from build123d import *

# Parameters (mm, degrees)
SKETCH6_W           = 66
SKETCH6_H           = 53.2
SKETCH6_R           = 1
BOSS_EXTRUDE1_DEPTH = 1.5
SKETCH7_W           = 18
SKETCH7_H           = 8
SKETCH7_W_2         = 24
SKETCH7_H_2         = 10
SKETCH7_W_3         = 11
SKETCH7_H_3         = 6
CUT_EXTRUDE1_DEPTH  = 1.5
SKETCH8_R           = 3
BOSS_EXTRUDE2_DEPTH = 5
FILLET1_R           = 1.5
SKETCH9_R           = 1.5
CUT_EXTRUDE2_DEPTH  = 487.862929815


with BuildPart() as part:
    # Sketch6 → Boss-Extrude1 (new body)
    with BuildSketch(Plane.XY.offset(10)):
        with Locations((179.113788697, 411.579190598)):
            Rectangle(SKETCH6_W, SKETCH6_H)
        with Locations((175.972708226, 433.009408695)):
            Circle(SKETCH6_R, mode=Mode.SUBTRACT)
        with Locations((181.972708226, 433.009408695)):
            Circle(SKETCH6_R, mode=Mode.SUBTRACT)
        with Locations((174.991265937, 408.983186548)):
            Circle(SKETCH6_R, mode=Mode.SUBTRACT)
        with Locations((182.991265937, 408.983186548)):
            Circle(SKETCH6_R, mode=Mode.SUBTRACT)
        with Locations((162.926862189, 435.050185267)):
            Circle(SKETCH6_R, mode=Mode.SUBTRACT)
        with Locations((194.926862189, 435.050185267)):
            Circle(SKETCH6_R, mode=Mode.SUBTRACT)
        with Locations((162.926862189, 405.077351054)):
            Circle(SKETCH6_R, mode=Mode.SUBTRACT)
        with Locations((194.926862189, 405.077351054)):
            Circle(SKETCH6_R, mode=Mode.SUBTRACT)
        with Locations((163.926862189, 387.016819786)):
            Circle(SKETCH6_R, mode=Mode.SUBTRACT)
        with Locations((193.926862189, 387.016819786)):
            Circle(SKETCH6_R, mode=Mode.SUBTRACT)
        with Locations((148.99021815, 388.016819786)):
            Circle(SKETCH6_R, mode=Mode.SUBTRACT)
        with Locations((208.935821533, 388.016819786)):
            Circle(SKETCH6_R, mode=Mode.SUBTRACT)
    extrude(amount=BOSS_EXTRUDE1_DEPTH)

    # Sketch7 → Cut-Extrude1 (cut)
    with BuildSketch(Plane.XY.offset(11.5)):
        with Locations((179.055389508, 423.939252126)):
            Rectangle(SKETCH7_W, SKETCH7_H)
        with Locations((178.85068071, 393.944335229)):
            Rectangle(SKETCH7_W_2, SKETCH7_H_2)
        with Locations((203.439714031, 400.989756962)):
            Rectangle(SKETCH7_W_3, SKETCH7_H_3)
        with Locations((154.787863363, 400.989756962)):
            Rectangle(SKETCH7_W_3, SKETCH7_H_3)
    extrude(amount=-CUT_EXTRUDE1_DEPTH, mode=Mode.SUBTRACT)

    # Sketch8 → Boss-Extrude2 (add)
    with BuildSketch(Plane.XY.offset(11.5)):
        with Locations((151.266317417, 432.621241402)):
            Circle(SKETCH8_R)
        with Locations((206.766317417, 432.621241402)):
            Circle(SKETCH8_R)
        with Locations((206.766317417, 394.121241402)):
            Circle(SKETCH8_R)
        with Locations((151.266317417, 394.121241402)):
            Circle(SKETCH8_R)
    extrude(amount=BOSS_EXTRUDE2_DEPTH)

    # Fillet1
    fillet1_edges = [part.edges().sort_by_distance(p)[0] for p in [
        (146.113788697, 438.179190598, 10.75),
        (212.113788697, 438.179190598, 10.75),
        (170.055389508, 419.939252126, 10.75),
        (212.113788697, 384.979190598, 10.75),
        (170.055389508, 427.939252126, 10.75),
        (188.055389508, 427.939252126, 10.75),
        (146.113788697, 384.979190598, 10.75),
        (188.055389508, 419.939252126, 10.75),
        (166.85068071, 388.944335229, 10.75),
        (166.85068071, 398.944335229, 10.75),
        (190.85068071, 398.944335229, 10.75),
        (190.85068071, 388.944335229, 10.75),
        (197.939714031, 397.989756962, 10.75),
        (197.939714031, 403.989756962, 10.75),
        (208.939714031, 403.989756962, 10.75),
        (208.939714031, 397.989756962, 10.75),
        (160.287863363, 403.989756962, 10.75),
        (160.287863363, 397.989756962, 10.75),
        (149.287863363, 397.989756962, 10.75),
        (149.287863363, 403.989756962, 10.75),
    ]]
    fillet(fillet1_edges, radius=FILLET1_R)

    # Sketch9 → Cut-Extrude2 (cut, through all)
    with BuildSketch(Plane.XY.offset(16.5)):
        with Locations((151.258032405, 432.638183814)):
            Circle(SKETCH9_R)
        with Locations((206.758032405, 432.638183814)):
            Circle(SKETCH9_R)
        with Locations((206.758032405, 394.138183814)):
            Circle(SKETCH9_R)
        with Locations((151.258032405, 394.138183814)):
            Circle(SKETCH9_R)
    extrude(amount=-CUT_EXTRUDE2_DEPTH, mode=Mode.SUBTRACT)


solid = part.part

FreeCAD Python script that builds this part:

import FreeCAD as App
import Part
import Sketcher
from FreeCAD import Vector


def edges_at(feature, points):
    """Names of the edges that pass closest to the given points."""
    edges = feature.Shape.Edges
    near = lambda p: min(range(len(edges)), key=lambda i: edges[i].distToShape(Part.Vertex(*p))[0])
    return sorted({f"Edge{near(p) + 1}" for p in points})


def add_polygon(sketch, points):
    """Adds a closed chain of lines whose ends are joined by coincident constraints."""
    first, n = sketch.GeometryCount, len(points)
    for a, b in zip(points, points[1:] + points[:1]):
        sketch.addGeometry(Part.LineSegment(App.Vector(*a, 0), App.Vector(*b, 0)), False)
    for i in range(n):
        sketch.addConstraint(Sketcher.Constraint("Coincident", first + i, 2, first + (i + 1) % n, 1))

doc = App.newDocument("Part")
body = doc.addObject("PartDesign::Body", "Body")

# Sketch on XY plane
sketch1 = body.newObject("Sketcher::SketchObject", "Sketch")
sketch1.AttachmentSupport = (doc.getObject("XY_Plane"), [""])
sketch1.MapMode = "FlatFace"
sketch1.AttachmentOffset = App.Placement(Vector(0, 0, 10), App.Rotation())
add_polygon(sketch1, [(146.113789, 438.179191), (146.113789, 384.979191), (212.113789, 384.979191), (212.113789, 438.179191)])  # lines 0-3
sketch1.addGeometry(Part.Circle(Vector(148.990218, 388.01682, 0), Vector(0, 0, 1), 1), False)  # 4
sketch1.addGeometry(Part.Circle(Vector(163.926862, 387.01682, 0), Vector(0, 0, 1), 1), False)  # 5
sketch1.addGeometry(Part.Circle(Vector(162.926862, 405.077351, 0), Vector(0, 0, 1), 1), False)  # 6
sketch1.addGeometry(Part.Circle(Vector(174.991266, 408.983187, 0), Vector(0, 0, 1), 1), False)  # 7
sketch1.addGeometry(Part.Circle(Vector(193.926862, 387.01682, 0), Vector(0, 0, 1), 1), False)  # 8
sketch1.addGeometry(Part.Circle(Vector(208.935822, 388.01682, 0), Vector(0, 0, 1), 1), False)  # 9
sketch1.addGeometry(Part.Circle(Vector(182.991266, 408.983187, 0), Vector(0, 0, 1), 1), False)  # 10
sketch1.addGeometry(Part.Circle(Vector(194.926862, 405.077351, 0), Vector(0, 0, 1), 1), False)  # 11
sketch1.addGeometry(Part.Circle(Vector(162.926862, 435.050185, 0), Vector(0, 0, 1), 1), False)  # 12
sketch1.addGeometry(Part.Circle(Vector(175.972708, 433.009409, 0), Vector(0, 0, 1), 1), False)  # 13
sketch1.addGeometry(Part.Circle(Vector(181.972708, 433.009409, 0), Vector(0, 0, 1), 1), False)  # 14
sketch1.addGeometry(Part.Circle(Vector(194.926862, 435.050185, 0), Vector(0, 0, 1), 1), False)  # 15
sketch1.addConstraint(Sketcher.Constraint("Vertical", 0))
sketch1.addConstraint(Sketcher.Constraint("Horizontal", 1))
sketch1.addConstraint(Sketcher.Constraint("Vertical", 2))
sketch1.addConstraint(Sketcher.Constraint("Horizontal", 3))
sketch1.addConstraint(Sketcher.Constraint("Equal", 4, 5))
sketch1.addConstraint(Sketcher.Constraint("Equal", 5, 6))
sketch1.addConstraint(Sketcher.Constraint("Equal", 6, 7))
sketch1.addConstraint(Sketcher.Constraint("Equal", 7, 8))
sketch1.addConstraint(Sketcher.Constraint("Equal", 8, 9))
sketch1.addConstraint(Sketcher.Constraint("Equal", 9, 10))
sketch1.addConstraint(Sketcher.Constraint("Equal", 10, 11))
sketch1.addConstraint(Sketcher.Constraint("Equal", 11, 12))
sketch1.addConstraint(Sketcher.Constraint("Equal", 12, 13))
sketch1.addConstraint(Sketcher.Constraint("Equal", 13, 14))
sketch1.addConstraint(Sketcher.Constraint("Equal", 14, 15))
sketch1.addConstraint(Sketcher.Constraint("Horizontal", 5, 3, 8, 3))
sketch1.addConstraint(Sketcher.Constraint("Horizontal", 4, 3, 9, 3))
sketch1.addConstraint(Sketcher.Constraint("Horizontal", 7, 3, 10, 3))
sketch1.addConstraint(Sketcher.Constraint("Horizontal", 6, 3, 11, 3))
sketch1.addConstraint(Sketcher.Constraint("Horizontal", 13, 3, 14, 3))
sketch1.addConstraint(Sketcher.Constraint("Horizontal", 12, 3, 15, 3))
sketch1.addConstraint(Sketcher.Constraint("Vertical", 6, 3, 12, 3))
sketch1.addConstraint(Sketcher.Constraint("Vertical", 11, 3, 15, 3))
sketch1.addConstraint(Sketcher.Constraint("Diameter", 4, 2.0))
sketch1.addConstraint(Sketcher.Constraint("DistanceX", 1, 1, 1, 2, 66.0))
sketch1.addConstraint(Sketcher.Constraint("DistanceY", 0, 2, 0, 1, 53.2))
sketch1.addConstraint(Sketcher.Constraint("DistanceY", 5, 3, 4, 3, 1.0))
sketch1.addConstraint(Sketcher.Constraint("DistanceX", 6, 3, 5, 3, 1.0))
sketch1.addConstraint(Sketcher.Constraint("DistanceX", 5, 3, 8, 3, 30.0))
sketch1.addConstraint(Sketcher.Constraint("DistanceX", 7, 3, 10, 3, 8.0))
sketch1.addConstraint(Sketcher.Constraint("DistanceX", 8, 3, 11, 3, 1.0))
sketch1.addConstraint(Sketcher.Constraint("DistanceX", 13, 3, 14, 3, 6.0))
sketch1.addConstraint(Sketcher.Constraint("DistanceY", 7, 3, 12, 3, 26.066999))
sketch1.addConstraint(Sketcher.Constraint("DistanceX", -1, 1, 4, 3, 148.990218))
sketch1.addConstraint(Sketcher.Constraint("DistanceY", -1, 1, 4, 3, 388.01682))
sketch1.addConstraint(Sketcher.Constraint("DistanceY", -1, 1, 6, 3, 405.077351))
sketch1.addConstraint(Sketcher.Constraint("DistanceX", -1, 1, 9, 3, 208.935822))
sketch1.addConstraint(Sketcher.Constraint("DistanceX", -1, 1, 13, 3, 175.972708))
sketch1.addConstraint(Sketcher.Constraint("DistanceY", -1, 1, 13, 3, 433.009409))
sketch1.addConstraint(Sketcher.Constraint("DistanceX", -1, 1, 0, 2, 146.113789))
sketch1.addConstraint(Sketcher.Constraint("DistanceY", -1, 1, 0, 2, 384.979191))
sketch1.addConstraint(Sketcher.Constraint("DistanceX", 8, 3, 9, 3, 15.008959))
sketch1.addConstraint(Sketcher.Constraint("DistanceX", -1, 1, 7, 3, 174.991266))
sketch1.addConstraint(Sketcher.Constraint("DistanceY", -1, 1, 7, 3, 408.983187))
pad1 = body.newObject("PartDesign::Pad", "Pad")
pad1.Profile = sketch1
pad1.Length = 1.5

# Sketch on XY plane
sketch2 = body.newObject("Sketcher::SketchObject", "Sketch001")
sketch2.AttachmentSupport = (doc.getObject("XY_Plane"), [""])
sketch2.MapMode = "FlatFace"
sketch2.AttachmentOffset = App.Placement(Vector(0, 0, 11.5), App.Rotation())
add_polygon(sketch2, [(170.05539, 427.939252), (170.05539, 419.939252), (188.05539, 419.939252), (188.05539, 427.939252)])  # lines 0-3
add_polygon(sketch2, [(166.850681, 398.944335), (166.850681, 388.944335), (190.850681, 388.944335), (190.850681, 398.944335)])  # lines 4-7
add_polygon(sketch2, [(197.939714, 403.989757), (197.939714, 397.989757), (208.939714, 397.989757), (208.939714, 403.989757)])  # lines 8-11
add_polygon(sketch2, [(149.287863, 403.989757), (149.287863, 397.989757), (160.287863, 397.989757), (160.287863, 403.989757)])  # lines 12-15
sketch2.addConstraint(Sketcher.Constraint("Vertical", 0))
sketch2.addConstraint(Sketcher.Constraint("Horizontal", 1))
sketch2.addConstraint(Sketcher.Constraint("Vertical", 2))
sketch2.addConstraint(Sketcher.Constraint("Horizontal", 3))
sketch2.addConstraint(Sketcher.Constraint("Vertical", 4))
sketch2.addConstraint(Sketcher.Constraint("Horizontal", 5))
sketch2.addConstraint(Sketcher.Constraint("Vertical", 6))
sketch2.addConstraint(Sketcher.Constraint("Horizontal", 7))
sketch2.addConstraint(Sketcher.Constraint("Vertical", 8))
sketch2.addConstraint(Sketcher.Constraint("Horizontal", 9))
sketch2.addConstraint(Sketcher.Constraint("Vertical", 10))
sketch2.addConstraint(Sketcher.Constraint("Horizontal", 11))
sketch2.addConstraint(Sketcher.Constraint("Vertical", 12))
sketch2.addConstraint(Sketcher.Constraint("Horizontal", 13))
sketch2.addConstraint(Sketcher.Constraint("Vertical", 14))
sketch2.addConstraint(Sketcher.Constraint("Horizontal", 15))
sketch2.addConstraint(Sketcher.Constraint("Horizontal", 9, 2, 12, 2))
sketch2.addConstraint(Sketcher.Constraint("Horizontal", 11, 2, 14, 2))
sketch2.addConstraint(Sketcher.Constraint("Equal", 11, 13))
sketch2.addConstraint(Sketcher.Constraint("DistanceX", 1, 1, 1, 2, 18.0))
sketch2.addConstraint(Sketcher.Constraint("DistanceX", 5, 1, 5, 2, 24.0))
sketch2.addConstraint(Sketcher.Constraint("DistanceX", 9, 1, 9, 2, 11.0))
sketch2.addConstraint(Sketcher.Constraint("DistanceY", 0, 2, 0, 1, 8.0))
sketch2.addConstraint(Sketcher.Constraint("DistanceY", 4, 2, 4, 1, 10.0))
sketch2.addConstraint(Sketcher.Constraint("DistanceY", 8, 2, 8, 1, 6.0))
sketch2.addConstraint(Sketcher.Constraint("DistanceX", -1, 1, 0, 2, 170.05539))
sketch2.addConstraint(Sketcher.Constraint("DistanceX", -1, 1, 4, 2, 166.850681))
sketch2.addConstraint(Sketcher.Constraint("DistanceY", 8, 2, 6, 2, 0.954578))
sketch2.addConstraint(Sketcher.Constraint("DistanceY", -1, 1, 0, 2, 419.939252))
sketch2.addConstraint(Sketcher.Constraint("DistanceY", -1, 1, 4, 2, 388.944335))
sketch2.addConstraint(Sketcher.Constraint("DistanceX", -1, 1, 8, 2, 197.939714))
sketch2.addConstraint(Sketcher.Constraint("DistanceX", -1, 1, 12, 2, 149.287863))
pocket1 = body.newObject("PartDesign::Pocket", "Pocket")
pocket1.Profile = sketch2
pocket1.Length = 1.5

# Sketch on XY plane
sketch3 = body.newObject("Sketcher::SketchObject", "Sketch002")
sketch3.AttachmentSupport = (doc.getObject("XY_Plane"), [""])
sketch3.MapMode = "FlatFace"
sketch3.AttachmentOffset = App.Placement(Vector(0, 0, 11.5), App.Rotation())
sketch3.addGeometry(Part.Circle(Vector(151.266317, 432.621241, 0), Vector(0, 0, 1), 3), False)
sketch3.addGeometry(Part.Circle(Vector(206.766317, 432.621241, 0), Vector(0, 0, 1), 3), False)
sketch3.addGeometry(Part.Circle(Vector(206.766317, 394.121241, 0), Vector(0, 0, 1), 3), False)
sketch3.addGeometry(Part.Circle(Vector(151.266317, 394.121241, 0), Vector(0, 0, 1), 3), False)
sketch3.addConstraint(Sketcher.Constraint("Equal", 0, 1))
sketch3.addConstraint(Sketcher.Constraint("Equal", 1, 2))
sketch3.addConstraint(Sketcher.Constraint("Equal", 2, 3))
sketch3.addConstraint(Sketcher.Constraint("Horizontal", 0, 3, 1, 3))
sketch3.addConstraint(Sketcher.Constraint("Horizontal", 2, 3, 3, 3))
sketch3.addConstraint(Sketcher.Constraint("Vertical", 1, 3, 2, 3))
sketch3.addConstraint(Sketcher.Constraint("Vertical", 0, 3, 3, 3))
sketch3.addConstraint(Sketcher.Constraint("Diameter", 0, 6.0))
sketch3.addConstraint(Sketcher.Constraint("DistanceX", 0, 3, 1, 3, 55.5))
sketch3.addConstraint(Sketcher.Constraint("DistanceY", 2, 3, 1, 3, 38.5))
sketch3.addConstraint(Sketcher.Constraint("DistanceY", -1, 1, 0, 3, 432.621241))
sketch3.addConstraint(Sketcher.Constraint("DistanceX", -1, 1, 0, 3, 151.266317))
pad2 = body.newObject("PartDesign::Pad", "Pad001")
pad2.Profile = sketch3
pad2.Length = 5
doc.recompute()

fillet = body.newObject("PartDesign::Fillet", "Fillet")
fillet.Base = (pad2, edges_at(pad2, [
    (146.114, 438.179, 10.75),
    (212.114, 438.179, 10.75),
    (170.055, 419.939, 10.75),
    (212.114, 384.979, 10.75),
    (170.055, 427.939, 10.75),
    (188.055, 427.939, 10.75),
    (146.114, 384.979, 10.75),
    (188.055, 419.939, 10.75),
    (166.851, 388.944, 10.75),
    (166.851, 398.944, 10.75),
    (190.851, 398.944, 10.75),
    (190.851, 388.944, 10.75),
    (197.94, 397.99, 10.75),
    (197.94, 403.99, 10.75),
    (208.94, 403.99, 10.75),
    (208.94, 397.99, 10.75),
    (160.288, 403.99, 10.75),
    (160.288, 397.99, 10.75),
    (149.288, 397.99, 10.75),
    (149.288, 403.99, 10.75),
]))
fillet.Radius = 1.5

# Sketch on XY plane
sketch4 = body.newObject("Sketcher::SketchObject", "Sketch003")
sketch4.AttachmentSupport = (doc.getObject("XY_Plane"), [""])
sketch4.MapMode = "FlatFace"
sketch4.AttachmentOffset = App.Placement(Vector(0, 0, 16.5), App.Rotation())
sketch4.addGeometry(Part.Circle(Vector(151.258032, 432.638184, 0), Vector(0, 0, 1), 1.5), False)
sketch4.addGeometry(Part.Circle(Vector(206.758032, 432.638184, 0), Vector(0, 0, 1), 1.5), False)
sketch4.addGeometry(Part.Circle(Vector(206.758032, 394.138184, 0), Vector(0, 0, 1), 1.5), False)
sketch4.addGeometry(Part.Circle(Vector(151.258032, 394.138184, 0), Vector(0, 0, 1), 1.5), False)
sketch4.addConstraint(Sketcher.Constraint("Equal", 0, 1))
sketch4.addConstraint(Sketcher.Constraint("Equal", 1, 2))
sketch4.addConstraint(Sketcher.Constraint("Equal", 2, 3))
sketch4.addConstraint(Sketcher.Constraint("Horizontal", 0, 3, 1, 3))
sketch4.addConstraint(Sketcher.Constraint("Horizontal", 2, 3, 3, 3))
sketch4.addConstraint(Sketcher.Constraint("Vertical", 1, 3, 2, 3))
sketch4.addConstraint(Sketcher.Constraint("Vertical", 0, 3, 3, 3))
sketch4.addConstraint(Sketcher.Constraint("Diameter", 0, 3.0))
sketch4.addConstraint(Sketcher.Constraint("DistanceX", 0, 3, 1, 3, 55.5))
sketch4.addConstraint(Sketcher.Constraint("DistanceY", 2, 3, 1, 3, 38.5))
sketch4.addConstraint(Sketcher.Constraint("DistanceX", -1, 1, 0, 3, 151.258032))
sketch4.addConstraint(Sketcher.Constraint("DistanceY", -1, 1, 0, 3, 432.638184))
pocket2 = body.newObject("PartDesign::Pocket", "Pocket001")
pocket2.Profile = sketch4
pocket2.Type = "ThroughAll"

doc.recompute()
